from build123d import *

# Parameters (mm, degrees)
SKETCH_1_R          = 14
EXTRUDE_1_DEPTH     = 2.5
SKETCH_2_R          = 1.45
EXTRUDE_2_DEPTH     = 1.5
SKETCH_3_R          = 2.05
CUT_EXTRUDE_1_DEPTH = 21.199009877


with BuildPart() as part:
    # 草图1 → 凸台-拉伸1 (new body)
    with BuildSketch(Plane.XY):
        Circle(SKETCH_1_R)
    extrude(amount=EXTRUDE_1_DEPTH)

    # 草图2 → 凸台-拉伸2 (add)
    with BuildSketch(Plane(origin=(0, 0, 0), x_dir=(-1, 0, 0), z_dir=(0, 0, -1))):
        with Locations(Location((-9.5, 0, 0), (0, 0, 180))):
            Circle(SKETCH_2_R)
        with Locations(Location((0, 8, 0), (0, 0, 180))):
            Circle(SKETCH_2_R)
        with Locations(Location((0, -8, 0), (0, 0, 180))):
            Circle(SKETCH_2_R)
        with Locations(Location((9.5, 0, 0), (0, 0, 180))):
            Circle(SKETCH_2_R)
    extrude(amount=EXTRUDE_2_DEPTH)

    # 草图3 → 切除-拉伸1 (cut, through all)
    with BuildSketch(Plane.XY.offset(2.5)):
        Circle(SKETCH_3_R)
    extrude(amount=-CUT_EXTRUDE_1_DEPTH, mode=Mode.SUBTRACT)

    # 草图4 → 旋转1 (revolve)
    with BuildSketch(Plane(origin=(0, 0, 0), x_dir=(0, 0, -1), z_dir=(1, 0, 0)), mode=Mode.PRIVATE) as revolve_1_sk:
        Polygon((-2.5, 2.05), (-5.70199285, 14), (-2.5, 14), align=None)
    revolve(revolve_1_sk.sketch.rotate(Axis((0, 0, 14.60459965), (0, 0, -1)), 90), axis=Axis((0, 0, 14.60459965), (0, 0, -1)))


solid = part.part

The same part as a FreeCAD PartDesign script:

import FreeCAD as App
import Part
import Sketcher

V = App.Vector
Q = App.Units.Quantity


def add_polygon(sketch, points):
    """Adds a closed chain of lines whose ends are joined by coincident constraints."""
    first, n = sketch.GeometryCount, len(points)
    for a, b in zip(points, points[1:] + points[:1]):
        sketch.addGeometry(Part.LineSegment(App.Vector(*a, 0), App.Vector(*b, 0)), False)
    for i in range(n):
        sketch.addConstraint(Sketcher.Constraint("Coincident", first + i, 2, first + (i + 1) % n, 1))

doc = App.newDocument("Part")
params = doc.addObject("Spreadsheet::Sheet", "Params")
for row, (alias, value) in enumerate([
    ("sketch1_diameter", "28 mm"),
    ("pad1_length", "2.5 mm"),
    ("sketch2_diameter", "2.9 mm"),
    ("pad2_length", "1.5 mm"),
    ("sketch3_diameter", "4.1 mm"),
    ("sketch4_width", "11.95 mm"),
    ("revolution_angle", "360 deg"),
], start=1):
    params.set(f"A{row}", alias)
    params.set(f"B{row}", "=" + value)
    params.setAlias(f"B{row}", alias)

body = doc.addObject("PartDesign::Body", "Body")

# Sketch on XY plane
sketch1 = doc.addObject("Sketcher::SketchObject", "Sketch")
body.addObject(sketch1)
sketch1.AttachmentSupport = (doc.XY_Plane, [""])
sketch1.MapMode = "FlatFace"
sketch1.addGeometry(Part.Circle(V(0, 0, 0), V(0, 0, 1), 14), False)
sketch1.addConstraint([
    Sketcher.Constraint("Coincident", 0, 3, -1, 1),
    Sketcher.Constraint("Diameter", 0, 28.0),
])
sketch1.setExpression("Constraints[1]", "Params.sketch1_diameter")
pad1 = doc.addObject("PartDesign::Pad", "Pad")
body.addObject(pad1)
pad1.Profile = sketch1
pad1.setExpression("Length", "Params.pad1_length")

# Sketch on XY plane
sketch2 = doc.addObject("Sketcher::SketchObject", "Sketch001")
body.addObject(sketch2)
sketch2.AttachmentSupport = (doc.XY_Plane, [""])
sketch2.MapMode = "FlatFace"
sketch2.addGeometry([
    Part.Circle(V(9.5, 0, 0), V(0, 0, 1), 1.4),
    Part.Circle(V(0, 8, 0), V(0, 0, 1), 1.4),
    Part.Circle(V(0, -8, 0), V(0, 0, 1), 1.4),
    Part.Circle(V(-9.5, 0, 0), V(0, 0, 1), 1.4),
], False)
sketch2.addConstraint([
    Sketcher.Constraint("Equal", 0, 1),
    Sketcher.Constraint("Equal", 1, 2),
    Sketcher.Constraint("Equal", 2, 3),
    Sketcher.Constraint("Symmetric", 1, 3, 2, 3, -1, 1),
    Sketcher.Constraint("Symmetric", 0, 3, 3, 3, -1, 1),
    Sketcher.Constraint("PointOnObject", 0, 3, -1),
    Sketcher.Constraint("PointOnObject", 1, 3, -2),
    Sketcher.Constraint("Diameter", 0, 2.9),
    Sketcher.Constraint("DistanceY", -1, 1, 1, 3, 8.0),
    Sketcher.Constraint("DistanceX", 3, 3, 0, 3, 19.0),
])
sketch2.setExpression("Constraints[7]", "Params.sketch2_diameter")
pad2 = doc.addObject("PartDesign::Pad", "Pad001")
body.addObject(pad2)
pad2.Profile = sketch2
pad2.setExpression("Length", "Params.pad2_length")
pad2.Reversed = True

# Sketch on XY plane
sketch3 = doc.addObject("Sketcher::SketchObject", "Sketch002")
body.addObject(sketch3)
sketch3.AttachmentSupport = (doc.XY_Plane, [""])
sketch3.MapMode = "FlatFace"
sketch3.AttachmentOffset = App.Placement(V(0, 0, 2.5), App.Rotation())
sketch3.addGeometry(Part.Circle(V(0, 0, 0), V(0, 0, 1), 2), False)
sketch3.addConstraint([
    Sketcher.Constraint("Coincident", 0, 3, -1, 1),
    Sketcher.Constraint("Diameter", 0, 4.1),
])
sketch3.setExpression("Constraints[1]", "Params.sketch3_diameter")
pocket1 = doc.addObject("PartDesign::Pocket", "Pocket")
body.addObject(pocket1)
pocket1.Profile = sketch3
pocket1.Type = "ThroughAll"

# Sketch on YZ plane
sketch4 = doc.addObject("Sketcher::SketchObject", "Sketch003")
body.addObject(sketch4)
sketch4.AttachmentSupport = (doc.YZ_Plane, [""])
sketch4.MapMode = "FlatFace"
add_polygon(sketch4, [(14, 5.7), (2, 2.5), (14, 2.5)])  # lines 0-2
sketch4.addConstraint([
    Sketcher.Constraint("Horizontal", 1),
    Sketcher.Constraint("Vertical", 2),
    Sketcher.Constraint("Angle", 0, Q("-165 deg")),
    Sketcher.Constraint("DistanceX", -1, 1, 1, 2, 14.0),
    Sketcher.Constraint("DistanceX", 1, 1, 1, 2, 11.95),
    Sketcher.Constraint("DistanceY", -1, 1, 0, 2, 2.5),
])
sketch4.setExpression("Constraints[7]", "Params.sketch4_width")
revolution = doc.addObject("PartDesign::Revolution", "Revolution")
body.addObject(revolution)
revolution.Profile = sketch4
revolution.ReferenceAxis = (sketch4, ["V_Axis"])
revolution.setExpression("Angle", "Params.revolution_angle")

doc.recompute()
